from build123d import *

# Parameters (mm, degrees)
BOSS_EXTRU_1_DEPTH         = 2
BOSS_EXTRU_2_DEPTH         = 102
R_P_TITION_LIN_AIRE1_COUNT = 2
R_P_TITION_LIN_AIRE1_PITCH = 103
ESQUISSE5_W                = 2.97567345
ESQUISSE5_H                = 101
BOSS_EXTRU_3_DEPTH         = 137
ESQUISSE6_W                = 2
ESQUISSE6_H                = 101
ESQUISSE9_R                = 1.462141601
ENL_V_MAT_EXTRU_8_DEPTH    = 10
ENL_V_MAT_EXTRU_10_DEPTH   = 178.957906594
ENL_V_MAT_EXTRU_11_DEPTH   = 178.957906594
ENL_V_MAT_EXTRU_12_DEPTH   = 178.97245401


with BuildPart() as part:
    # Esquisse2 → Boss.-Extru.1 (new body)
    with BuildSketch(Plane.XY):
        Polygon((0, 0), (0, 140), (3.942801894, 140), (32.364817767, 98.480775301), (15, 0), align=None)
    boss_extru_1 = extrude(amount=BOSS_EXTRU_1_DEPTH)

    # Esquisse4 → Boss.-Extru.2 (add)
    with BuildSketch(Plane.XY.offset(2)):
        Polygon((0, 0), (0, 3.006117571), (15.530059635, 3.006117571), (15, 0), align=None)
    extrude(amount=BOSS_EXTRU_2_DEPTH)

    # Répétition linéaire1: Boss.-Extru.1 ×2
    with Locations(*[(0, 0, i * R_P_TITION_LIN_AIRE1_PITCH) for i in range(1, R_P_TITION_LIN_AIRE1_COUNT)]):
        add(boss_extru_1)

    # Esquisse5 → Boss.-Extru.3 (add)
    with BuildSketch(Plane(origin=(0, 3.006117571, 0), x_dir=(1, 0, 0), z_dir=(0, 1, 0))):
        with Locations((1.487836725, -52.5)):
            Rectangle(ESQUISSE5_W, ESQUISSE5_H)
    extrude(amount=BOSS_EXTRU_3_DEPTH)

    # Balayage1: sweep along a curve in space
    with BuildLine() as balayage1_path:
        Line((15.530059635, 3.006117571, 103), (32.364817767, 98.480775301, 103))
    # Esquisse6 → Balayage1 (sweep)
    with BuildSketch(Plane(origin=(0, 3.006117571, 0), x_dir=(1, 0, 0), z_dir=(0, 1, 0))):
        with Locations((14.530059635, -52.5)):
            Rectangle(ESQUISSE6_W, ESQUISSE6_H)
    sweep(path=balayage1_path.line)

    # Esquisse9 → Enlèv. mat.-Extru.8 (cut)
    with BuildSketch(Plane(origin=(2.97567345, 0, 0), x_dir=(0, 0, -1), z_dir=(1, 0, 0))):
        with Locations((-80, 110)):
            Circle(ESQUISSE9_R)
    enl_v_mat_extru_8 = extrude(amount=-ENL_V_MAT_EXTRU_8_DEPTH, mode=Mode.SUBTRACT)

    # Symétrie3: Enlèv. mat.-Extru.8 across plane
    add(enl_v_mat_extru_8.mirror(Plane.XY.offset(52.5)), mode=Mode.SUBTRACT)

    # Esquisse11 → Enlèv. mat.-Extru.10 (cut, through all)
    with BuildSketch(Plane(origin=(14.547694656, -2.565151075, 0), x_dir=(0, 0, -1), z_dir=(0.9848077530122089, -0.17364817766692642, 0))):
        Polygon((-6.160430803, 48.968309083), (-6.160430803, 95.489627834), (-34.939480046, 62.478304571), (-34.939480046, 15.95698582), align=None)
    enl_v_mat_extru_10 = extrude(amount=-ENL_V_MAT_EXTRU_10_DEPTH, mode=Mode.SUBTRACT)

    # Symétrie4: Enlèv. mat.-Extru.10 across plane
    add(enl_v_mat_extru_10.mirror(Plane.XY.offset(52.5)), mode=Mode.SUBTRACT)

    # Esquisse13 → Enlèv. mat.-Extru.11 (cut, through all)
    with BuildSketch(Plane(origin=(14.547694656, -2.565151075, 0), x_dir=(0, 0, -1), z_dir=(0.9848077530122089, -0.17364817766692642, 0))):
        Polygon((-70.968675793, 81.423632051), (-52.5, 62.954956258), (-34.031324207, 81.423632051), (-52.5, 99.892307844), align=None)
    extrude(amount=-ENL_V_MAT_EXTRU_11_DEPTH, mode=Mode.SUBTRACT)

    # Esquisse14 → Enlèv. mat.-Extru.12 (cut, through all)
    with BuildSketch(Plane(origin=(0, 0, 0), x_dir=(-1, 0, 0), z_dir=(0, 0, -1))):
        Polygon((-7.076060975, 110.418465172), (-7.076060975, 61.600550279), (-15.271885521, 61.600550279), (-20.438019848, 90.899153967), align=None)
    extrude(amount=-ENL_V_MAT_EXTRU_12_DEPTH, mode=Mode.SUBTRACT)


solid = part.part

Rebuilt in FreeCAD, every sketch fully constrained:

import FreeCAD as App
import Part
import Sketcher

V = App.Vector
Q = App.Units.Quantity

doc = App.newDocument("Part")
body = doc.addObject("PartDesign::Body", "Body")

sketch1 = body.newObject("Sketcher::SketchObject", "Sketch")
sketch1.AttachmentSupport = (doc.getObject("XY_Plane"), [""])
sketch1.MapMode = "FlatFace"
sketch1.addGeometry(Part.LineSegment(V(0, 140, 0), V(0, 0, 0)), False)
sketch1.addGeometry(Part.LineSegment(V(0, 0, 0), V(15, 0, 0)), False)
sketch1.addGeometry(Part.LineSegment(V(15, 0, 0), V(32.4, 98.5, 0)), False)
sketch1.addGeometry(Part.LineSegment(V(32.4, 98.5, 0), V(3.9, 140, 0)), False)
sketch1.addGeometry(Part.LineSegment(V(3.9, 140, 0), V(0, 140, 0)), False)
sketch1.addConstraint(Sketcher.Constraint("Coincident", 0, 2, 1, 1))
sketch1.addConstraint(Sketcher.Constraint("Coincident", 1, 2, 2, 1))
sketch1.addConstraint(Sketcher.Constraint("Coincident", 2, 2, 3, 1))
sketch1.addConstraint(Sketcher.Constraint("Coincident", 3, 2, 4, 1))
sketch1.addConstraint(Sketcher.Constraint("Coincident", 4, 2, 0, 1))
sketch1.addConstraint(Sketcher.Constraint("Vertical", 0))
sketch1.addConstraint(Sketcher.Constraint("Horizontal", 1))
sketch1.addConstraint(Sketcher.Constraint("Horizontal", 4))
sketch1.addConstraint(Sketcher.Constraint("Coincident", 0, 2, -1, 1))
sketch1.addConstraint(Sketcher.Constraint("DistanceX", 1, 1, 1, 2, Q("15 mm")))
sketch1.addConstraint(Sketcher.Constraint("DistanceY", 0, 2, 0, 1, Q("140 mm")))
sketch1.addConstraint(Sketcher.Constraint("Angle", 2, Q("80 deg")))
sketch1.addConstraint(Sketcher.Constraint("Distance", 2, Q("100 mm")))
sketch1.addConstraint(Sketcher.Constraint("DistanceX", 4, 2, 4, 1, Q("3.942802 mm")))
pad1 = body.newObject("PartDesign::Pad", "Pad")
pad1.Profile = sketch1
pad1.Length = 2

sketch2 = body.newObject("Sketcher::SketchObject", "Sketch001")
sketch2.AttachmentSupport = (doc.getObject("XY_Plane"), [""])
sketch2.MapMode = "FlatFace"
sketch2.AttachmentOffset = App.Placement(V(0, 0, 2), App.Rotation())
sketch2.addGeometry(Part.LineSegment(V(0, 3, 0), V(0, 0, 0)), False)
sketch2.addGeometry(Part.LineSegment(V(0, 0, 0), V(15, 0, 0)), False)
sketch2.addGeometry(Part.LineSegment(V(15, 0, 0), V(15.5, 3, 0)), False)
sketch2.addGeometry(Part.LineSegment(V(15.5, 3, 0), V(0, 3, 0)), False)
sketch2.addConstraint(Sketcher.Constraint("Coincident", 0, 2, 1, 1))
sketch2.addConstraint(Sketcher.Constraint("Coincident", 1, 2, 2, 1))
sketch2.addConstraint(Sketcher.Constraint("Coincident", 2, 2, 3, 1))
sketch2.addConstraint(Sketcher.Constraint("Coincident", 3, 2, 0, 1))
sketch2.addConstraint(Sketcher.Constraint("Vertical", 0))
sketch2.addConstraint(Sketcher.Constraint("Horizontal", 1))
sketch2.addConstraint(Sketcher.Constraint("Horizontal", 3))
sketch2.addConstraint(Sketcher.Constraint("Coincident", 0, 2, -1, 1))
sketch2.addConstraint(Sketcher.Constraint("DistanceX", 1, 1, 1, 2, Q("15 mm")))
sketch2.addConstraint(Sketcher.Constraint("Angle", 2, Q("80 deg")))
sketch2.addConstraint(Sketcher.Constraint("DistanceX", 3, 2, 3, 1, Q("15.53006 mm")))
pad2 = body.newObject("PartDesign::Pad", "Pad001")
pad2.Profile = sketch2
pad2.Length = 102
doc.recompute()

linearpattern = body.newObject("PartDesign::LinearPattern", "LinearPattern")
linearpattern.Originals = [pad1]
linearpattern.Direction = (doc.getObject("Z_Axis"), [""])
linearpattern.Mode = "offset"
linearpattern.Offset = 103
linearpattern.Occurrences = 2
body.Tip = linearpattern

sketch3 = body.newObject("Sketcher::SketchObject", "Sketch002")
sketch3.AttachmentSupport = (doc.getObject("XZ_Plane"), [""])
sketch3.MapMode = "FlatFace"
sketch3.AttachmentOffset = App.Placement(V(0, 0, -3.006118), App.Rotation())
sketch3.addGeometry(Part.LineSegment(V(0, 2, 0), V(0, 103, 0)), False)
sketch3.addGeometry(Part.LineSegment(V(0, 103, 0), V(3, 103, 0)), False)
sketch3.addGeometry(Part.LineSegment(V(3, 103, 0), V(3, 2, 0)), False)
sketch3.addGeometry(Part.LineSegment(V(3, 2, 0), V(0, 2, 0)), False)
sketch3.addConstraint(Sketcher.Constraint("Coincident", 0, 2, 1, 1))
sketch3.addConstraint(Sketcher.Constraint("Coincident", 1, 2, 2, 1))
sketch3.addConstraint(Sketcher.Constraint("Coincident", 2, 2, 3, 1))
sketch3.addConstraint(Sketcher.Constraint("Coincident", 3, 2, 0, 1))
sketch3.addConstraint(Sketcher.Constraint("Vertical", 0))
sketch3.addConstraint(Sketcher.Constraint("Horizontal", 1))
sketch3.addConstraint(Sketcher.Constraint("Vertical", 2))
sketch3.addConstraint(Sketcher.Constraint("Horizontal", 3))
sketch3.addConstraint(Sketcher.Constraint("PointOnObject", 0, 2, -2))
sketch3.addConstraint(Sketcher.Constraint("DistanceY", 0, 1, 0, 2, Q("101 mm")))
sketch3.addConstraint(Sketcher.Constraint("DistanceY", -1, 1, 0, 2, Q("103 mm")))
sketch3.addConstraint(Sketcher.Constraint("DistanceX", 1, 1, 1, 2, Q("2.975673 mm")))
pad3 = body.newObject("PartDesign::Pad", "Pad002")
pad3.Profile = sketch3
pad3.Length = 137
pad3.Reversed = True

sketch4 = body.newObject("Sketcher::SketchObject", "Sketch003")
sketch4.AttachmentSupport = (doc.getObject("XZ_Plane"), [""])
sketch4.MapMode = "FlatFace"
sketch4.AttachmentOffset = App.Placement(V(0, 0, -3.006118), App.Rotation())
sketch4.addGeometry(Part.LineSegment(V(13.5, 2, 0), V(13.5, 103, 0)), False)
sketch4.addGeometry(Part.LineSegment(V(13.5, 103, 0), V(15.5, 103, 0)), False)
sketch4.addGeometry(Part.LineSegment(V(15.5, 103, 0), V(15.5, 2, 0)), False)
sketch4.addGeometry(Part.LineSegment(V(15.5, 2, 0), V(13.5, 2, 0)), False)
sketch4.addConstraint(Sketcher.Constraint("Coincident", 0, 2, 1, 1))
sketch4.addConstraint(Sketcher.Constraint("Coincident", 1, 2, 2, 1))
sketch4.addConstraint(Sketcher.Constraint("Coincident", 2, 2, 3, 1))
sketch4.addConstraint(Sketcher.Constraint("Coincident", 3, 2, 0, 1))
sketch4.addConstraint(Sketcher.Constraint("Vertical", 0))
sketch4.addConstraint(Sketcher.Constraint("Horizontal", 1))
sketch4.addConstraint(Sketcher.Constraint("Vertical", 2))
sketch4.addConstraint(Sketcher.Constraint("Horizontal", 3))
sketch4.addConstraint(Sketcher.Constraint("DistanceX", 1, 1, 1, 2, Q("2 mm")))
sketch4.addConstraint(Sketcher.Constraint("DistanceY", 0, 1, 0, 2, Q("101 mm")))
sketch4.addConstraint(Sketcher.Constraint("DistanceY", -1, 1, 0, 2, Q("103 mm")))
sketch4.addConstraint(Sketcher.Constraint("DistanceX", -1, 1, 0, 2, Q("13.53006 mm")))

sketch5 = body.newObject("Sketcher::SketchObject", "Sketch004")
sketch5.Placement = App.Placement(V(14.547695, -2.565151, 0), App.Rotation(V(0.173648178, 0.984807753, 0), V(0, 0, 1), V(0.984807753, -0.173648178, 0), "ZXY"))
sketch5.addGeometry(Part.LineSegment(V(6, 103, 0), V(103, 103, 0)), False)
sketch5.addConstraint(Sketcher.Constraint("Horizontal", 0))
sketch5.addConstraint(Sketcher.Constraint("DistanceY", -1, 1, 0, 1, Q("103 mm")))
sketch5.addConstraint(Sketcher.Constraint("DistanceX", 0, 1, 0, 2, Q("96.947508 mm")))
sketch5.addConstraint(Sketcher.Constraint("DistanceX", -1, 1, 0, 1, Q("5.657214 mm")))
doc.recompute()

additivepipe = body.newObject("PartDesign::AdditivePipe", "AdditivePipe")
additivepipe.Profile = sketch4
additivepipe.Spine = (sketch5, ["Edge1"])

sketch6 = body.newObject("Sketcher::SketchObject", "Sketch005")
sketch6.AttachmentSupport = (doc.getObject("YZ_Plane"), [""])
sketch6.MapMode = "FlatFace"
sketch6.AttachmentOffset = App.Placement(V(0, 0, 2.975673), App.Rotation())
sketch6.addGeometry(Part.Circle(V(110, 80, 0), V(0, 0, 1), 1.5), False)
sketch6.addConstraint(Sketcher.Constraint("DistanceX", -1, 1, 0, 3, Q("110 mm")))
sketch6.addConstraint(Sketcher.Constraint("DistanceY", -1, 1, 0, 3, Q("80 mm")))
sketch6.addConstraint(Sketcher.Constraint("Diameter", 0, Q("2.924283 mm")))
pocket1 = body.newObject("PartDesign::Pocket", "Pocket")
pocket1.Profile = sketch6
pocket1.Length = 10
doc.recompute()

datumplane = body.newObject("PartDesign::Plane", "DatumPlane")
datumplane.AttachmentSupport = (doc.getObject("XY_Plane"), [""])
datumplane.MapMode = "FlatFace"
datumplane.AttachmentOffset = App.Placement(V(0, 0, 52.5), App.Rotation())
mirrored = body.newObject("PartDesign::Mirrored", "Mirrored")
mirrored.Originals = [pocket1]
mirrored.MirrorPlane = (datumplane, [""])
body.Tip = mirrored

sketch7 = body.newObject("Sketcher::SketchObject", "Sketch006")
sketch7.Placement = App.Placement(V(14.547695, -2.565151, 0), App.Rotation(V(0, 0, -1), V(0.173648178, 0.984807753, 0), V(0.984807753, -0.173648178, 0), "ZXY"))
sketch7.addGeometry(Part.LineSegment(V(-6, 49, 0), V(-6, 95, 0)), False)
sketch7.addGeometry(Part.LineSegment(V(-6, 95, 0), V(-35, 62, 0)), False)
sketch7.addGeometry(Part.LineSegment(V(-35, 62, 0), V(-35, 16, 0)), False)
sketch7.addGeometry(Part.LineSegment(V(-35, 16, 0), V(-6, 49, 0)), False)
sketch7.addConstraint(Sketcher.Constraint("Coincident", 0, 2, 1, 1))
sketch7.addConstraint(Sketcher.Constraint("Coincident", 1, 2, 2, 1))
sketch7.addConstraint(Sketcher.Constraint("Coincident", 2, 2, 3, 1))
sketch7.addConstraint(Sketcher.Constraint("Coincident", 3, 2, 0, 1))
sketch7.addConstraint(Sketcher.Constraint("Vertical", 0))
sketch7.addConstraint(Sketcher.Constraint("Vertical", 2))
sketch7.addConstraint(Sketcher.Constraint("Parallel", 1, 3))
sketch7.addConstraint(Sketcher.Constraint("DistanceY", 0, 1, 0, 2, Q("46.521319 mm")))
sketch7.addConstraint(Sketcher.Constraint("Distance", 1, Q("43.794762 mm")))
sketch7.addConstraint(Sketcher.Constraint("DistanceX", 0, 2, -1, 1, Q("6.160431 mm")))
sketch7.addConstraint(Sketcher.Constraint("DistanceX", 1, 2, -1, 1, Q("34.93948 mm")))
sketch7.addConstraint(Sketcher.Constraint("DistanceY", -1, 1, 3, 2, Q("48.968309 mm")))
pocket2 = body.newObject("PartDesign::Pocket", "Pocket001")
pocket2.Profile = sketch7
pocket2.Type = "ThroughAll"
doc.recompute()

datumplane2 = body.newObject("PartDesign::Plane", "DatumPlane001")
datumplane2.AttachmentSupport = (doc.getObject("XY_Plane"), [""])
datumplane2.MapMode = "FlatFace"
datumplane2.AttachmentOffset = App.Placement(V(0, 0, 52.5), App.Rotation())
mirrored2 = body.newObject("PartDesign::Mirrored", "Mirrored001")
mirrored2.Originals = [pocket2]
mirrored2.MirrorPlane = (datumplane2, [""])
body.Tip = mirrored2

sketch8 = body.newObject("Sketcher::SketchObject", "Sketch007")
sketch8.Placement = App.Placement(V(14.547695, -2.565151, 0), App.Rotation(V(0, 0, -1), V(0.173648178, 0.984807753, 0), V(0.984807753, -0.173648178, 0), "ZXY"))
sketch8.addGeometry(Part.LineSegment(V(-71, 81, 0), V(-52, 63, 0)), False)
sketch8.addGeometry(Part.LineSegment(V(-52, 63, 0), V(-34, 81, 0)), False)
sketch8.addGeometry(Part.LineSegment(V(-34, 81, 0), V(-52, 100, 0)), False)
sketch8.addGeometry(Part.LineSegment(V(-52, 100, 0), V(-71, 81, 0)), False)
sketch8.addConstraint(Sketcher.Constraint("Coincident", 0, 2, 1, 1))
sketch8.addConstraint(Sketcher.Constraint("Coincident", 1, 2, 2, 1))
sketch8.addConstraint(Sketcher.Constraint("Coincident", 2, 2, 3, 1))
sketch8.addConstraint(Sketcher.Constraint("Coincident", 3, 2, 0, 1))
sketch8.addConstraint(Sketcher.Constraint("Perpendicular", 0, 1))
sketch8.addConstraint(Sketcher.Constraint("Perpendicular", 1, 2))
sketch8.addConstraint(Sketcher.Constraint("Perpendicular", 2, 3))
sketch8.addConstraint(Sketcher.Constraint("Horizontal", 1, 2, 3, 2))
sketch8.addConstraint(Sketcher.Constraint("Vertical", 0, 2, 2, 2))
sketch8.addConstraint(Sketcher.Constraint("DistanceX", 0, 2, -1, 1, Q("52.5 mm")))
sketch8.addConstraint(Sketcher.Constraint("Distance", 0, Q("26.118652 mm")))
sketch8.addConstraint(Sketcher.Constraint("DistanceY", -1, 1, 0, 2, Q("62.954956 mm")))
pocket3 = body.newObject("PartDesign::Pocket", "Pocket002")
pocket3.Profile = sketch8
pocket3.Type = "ThroughAll"

sketch9 = body.newObject("Sketcher::SketchObject", "Sketch008")
sketch9.AttachmentSupport = (doc.getObject("XY_Plane"), [""])
sketch9.MapMode = "FlatFace"
sketch9.addGeometry(Part.LineSegment(V(7, 62, 0), V(7, 110, 0)), False)
sketch9.addGeometry(Part.LineSegment(V(7, 110, 0), V(20, 91, 0)), False)
sketch9.addGeometry(Part.LineSegment(V(20, 91, 0), V(15, 62, 0)), False)
sketch9.addGeometry(Part.LineSegment(V(15, 62, 0), V(7, 62, 0)), False)
sketch9.addConstraint(Sketcher.Constraint("Coincident", 0, 2, 1, 1))
sketch9.addConstraint(Sketcher.Constraint("Coincident", 1, 2, 2, 1))
sketch9.addConstraint(Sketcher.Constraint("Coincident", 2, 2, 3, 1))
sketch9.addConstraint(Sketcher.Constraint("Coincident", 3, 2, 0, 1))
sketch9.addConstraint(Sketcher.Constraint("Vertical", 0))
sketch9.addConstraint(Sketcher.Constraint("Horizontal", 3))
sketch9.addConstraint(Sketcher.Constraint("Angle", 2, Q("-100 deg")))
sketch9.addConstraint(Sketcher.Constraint("Distance", 2, Q("29.750582 mm")))
sketch9.addConstraint(Sketcher.Constraint("DistanceX", 3, 2, 3, 1, Q("8.195825 mm")))
sketch9.addConstraint(Sketcher.Constraint("DistanceY", 0, 1, 0, 2, Q("48.817915 mm")))
sketch9.addConstraint(Sketcher.Constraint("DistanceX", -1, 1, 0, 2, Q("7.076061 mm")))
sketch9.addConstraint(Sketcher.Constraint("DistanceY", -1, 1, 2, 2, Q("61.60055 mm")))
pocket4 = body.newObject("PartDesign::Pocket", "Pocket003")
pocket4.Profile = sketch9
pocket4.Type = "ThroughAll"
pocket4.Reversed = True

doc.recompute()
